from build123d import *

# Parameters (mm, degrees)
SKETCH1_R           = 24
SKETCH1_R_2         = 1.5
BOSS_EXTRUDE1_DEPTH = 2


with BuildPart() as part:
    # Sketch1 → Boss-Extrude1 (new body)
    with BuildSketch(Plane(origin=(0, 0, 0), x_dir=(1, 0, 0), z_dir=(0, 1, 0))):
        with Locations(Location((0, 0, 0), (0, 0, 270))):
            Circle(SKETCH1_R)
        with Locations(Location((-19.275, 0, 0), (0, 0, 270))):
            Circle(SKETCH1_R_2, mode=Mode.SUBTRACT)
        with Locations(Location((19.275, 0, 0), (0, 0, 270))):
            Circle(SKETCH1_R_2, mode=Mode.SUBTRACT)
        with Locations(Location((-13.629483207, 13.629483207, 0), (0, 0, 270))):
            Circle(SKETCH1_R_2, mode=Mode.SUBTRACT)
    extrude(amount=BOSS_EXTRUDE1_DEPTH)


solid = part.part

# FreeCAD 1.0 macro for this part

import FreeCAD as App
import Part
import Sketcher
Q = App.Units.Quantity

doc = App.newDocument("Part")
body = doc.addObject("PartDesign::Body", "Body")

# Sketch on XZ plane
sketch1 = body.newObject("Sketcher::SketchObject", "Sketch")
sketch1.AttachmentSupport = (doc.getObject("XZ_Plane"), [""])
sketch1.MapMode = "FlatFace"
sketch1.addGeometry([
    Part.Circle(App.Vector(0, 0, 0), App.Vector(0, 0, 1), 24),
    Part.Circle(App.Vector(-13.6, -13.6, 0), App.Vector(0, 0, 1), 1.5),
    Part.Circle(App.Vector(-19.3, 0, 0), App.Vector(0, 0, 1), 1.5),
    Part.Circle(App.Vector(19.3, 0, 0), App.Vector(0, 0, 1), 1.5),
], False)
sketch1.addConstraint([
    Sketcher.Constraint("Coincident", 0, 3, -1, 1),
    Sketcher.Constraint("Equal", 1, 2),
    Sketcher.Constraint("Equal", 2, 3),
    Sketcher.Constraint("Symmetric", 2, 3, 3, 3, -1, 1),
    Sketcher.Constraint("PointOnObject", 2, 3, -1),
    Sketcher.Constraint("Diameter", 0, Q("48 mm")),
    Sketcher.Constraint("Diameter", 1, Q("3 mm")),
    Sketcher.Constraint("DistanceX", 2, 3, 3, 3, Q("38.55 mm")),
    Sketcher.Constraint("DistanceX", 1, 3, -1, 1, Q("13.629483 mm")),
    Sketcher.Constraint("DistanceY", 1, 3, -1, 1, Q("13.629483 mm")),
])
pad1 = body.newObject("PartDesign::Pad", "Pad")
pad1.Profile = sketch1
pad1.Length = 2
pad1.Reversed = True

doc.recompute()
